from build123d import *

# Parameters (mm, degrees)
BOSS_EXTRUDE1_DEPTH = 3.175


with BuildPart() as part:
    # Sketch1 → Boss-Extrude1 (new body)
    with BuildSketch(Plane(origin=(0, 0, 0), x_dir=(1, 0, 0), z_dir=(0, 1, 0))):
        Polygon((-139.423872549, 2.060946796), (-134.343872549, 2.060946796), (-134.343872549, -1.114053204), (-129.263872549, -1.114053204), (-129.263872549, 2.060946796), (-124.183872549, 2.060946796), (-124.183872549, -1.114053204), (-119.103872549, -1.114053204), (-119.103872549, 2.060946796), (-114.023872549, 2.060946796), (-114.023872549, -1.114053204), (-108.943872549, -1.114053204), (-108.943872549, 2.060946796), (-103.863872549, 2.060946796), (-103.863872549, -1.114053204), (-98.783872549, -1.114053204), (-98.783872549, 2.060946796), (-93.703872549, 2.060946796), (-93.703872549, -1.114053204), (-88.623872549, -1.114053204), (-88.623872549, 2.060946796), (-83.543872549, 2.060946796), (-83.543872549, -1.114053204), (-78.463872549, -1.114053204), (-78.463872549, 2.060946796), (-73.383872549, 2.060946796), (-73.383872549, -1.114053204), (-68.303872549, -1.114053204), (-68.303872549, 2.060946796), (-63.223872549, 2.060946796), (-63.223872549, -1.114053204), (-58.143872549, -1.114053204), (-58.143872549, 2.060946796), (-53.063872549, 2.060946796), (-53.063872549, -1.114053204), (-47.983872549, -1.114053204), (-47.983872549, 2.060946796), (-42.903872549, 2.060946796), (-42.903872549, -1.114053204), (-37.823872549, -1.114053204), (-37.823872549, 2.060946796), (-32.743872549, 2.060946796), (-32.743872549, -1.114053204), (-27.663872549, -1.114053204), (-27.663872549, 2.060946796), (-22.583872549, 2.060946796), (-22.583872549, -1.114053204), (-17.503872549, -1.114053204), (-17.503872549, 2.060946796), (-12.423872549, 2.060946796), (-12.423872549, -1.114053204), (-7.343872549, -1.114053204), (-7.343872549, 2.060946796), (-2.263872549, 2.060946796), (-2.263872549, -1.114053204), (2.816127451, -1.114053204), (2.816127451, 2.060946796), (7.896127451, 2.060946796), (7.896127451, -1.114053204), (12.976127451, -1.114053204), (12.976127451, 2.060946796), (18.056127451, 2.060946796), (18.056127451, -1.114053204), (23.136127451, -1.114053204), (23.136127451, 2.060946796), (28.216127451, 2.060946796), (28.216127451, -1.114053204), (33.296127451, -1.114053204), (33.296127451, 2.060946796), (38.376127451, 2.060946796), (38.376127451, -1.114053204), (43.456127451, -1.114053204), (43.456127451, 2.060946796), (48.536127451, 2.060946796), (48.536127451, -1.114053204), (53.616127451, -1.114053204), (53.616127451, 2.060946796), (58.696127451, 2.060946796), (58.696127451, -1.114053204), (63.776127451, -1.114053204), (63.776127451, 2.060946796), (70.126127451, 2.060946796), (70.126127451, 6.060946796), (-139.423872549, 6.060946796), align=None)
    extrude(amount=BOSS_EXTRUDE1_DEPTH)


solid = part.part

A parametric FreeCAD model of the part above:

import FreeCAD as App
import Part
import Sketcher
Q = App.Units.Quantity


def add_polygon(sketch, points):
    """Adds a closed chain of lines whose ends are joined by coincident constraints."""
    first, n = sketch.GeometryCount, len(points)
    for a, b in zip(points, points[1:] + points[:1]):
        sketch.addGeometry(Part.LineSegment(App.Vector(*a, 0), App.Vector(*b, 0)), False)
    for i in range(n):
        sketch.addConstraint(Sketcher.Constraint("Coincident", first + i, 2, first + (i + 1) % n, 1))

doc = App.newDocument("Part")
body = doc.addObject("PartDesign::Body", "Body")

# Sketch on XZ plane
sketch1 = doc.addObject("Sketcher::SketchObject", "Sketch")
body.addObject(sketch1)
sketch1.AttachmentSupport = (doc.XZ_Plane, [""])
sketch1.MapMode = "FlatFace"
add_polygon(sketch1, [(-139.423873, -2.060947), (-134.343873, -2.060947), (-134.343873, 1.114053), (-129.263873, 1.114053), (-129.263873, -2.060947), (-124.183873, -2.060947), (-124.183873, 1.114053), (-119.103873, 1.114053), (-119.103873, -2.060947), (-114.023873, -2.060947), (-114.023873, 1.114053), (-108.943873, 1.114053), (-108.943873, -2.060947), (-103.863873, -2.060947), (-103.863873, 1.114053), (-98.783873, 1.114053), (-98.783873, -2.060947), (-93.703873, -2.060947), (-93.703873, 1.114053), (-88.623873, 1.114053), (-88.623873, -2.060947), (-83.543873, -2.060947), (-83.543873, 1.114053), (-78.463873, 1.114053), (-78.463873, -2.060947), (-73.383873, -2.060947), (-73.383873, 1.114053), (-68.303873, 1.114053), (-68.303873, -2.060947), (-63.223873, -2.060947), (-63.223873, 1.114053), (-58.143873, 1.114053), (-58.143873, -2.060947), (-53.063873, -2.060947), (-53.063873, 1.114053), (-47.983873, 1.114053), (-47.983873, -2.060947), (-42.903873, -2.060947), (-42.903873, 1.114053), (-37.823873, 1.114053), (-37.823873, -2.060947), (-32.743873, -2.060947), (-32.743873, 1.114053), (-27.663873, 1.114053), (-27.663873, -2.060947), (-22.583873, -2.060947), (-22.583873, 1.114053), (-17.503873, 1.114053), (-17.503873, -2.060947), (-12.423873, -2.060947), (-12.423873, 1.114053), (-7.343873, 1.114053), (-7.343873, -2.060947), (-2.263873, -2.060947), (-2.263873, 1.114053), (2.816127, 1.114053), (2.816127, -2.060947), (7.896127, -2.060947), (7.896127, 1.114053), (12.976127, 1.114053), (12.976127, -2.060947), (18.056127, -2.060947), (18.056127, 1.114053), (23.136127, 1.114053), (23.136127, -2.060947), (28.216127, -2.060947), (28.216127, 1.114053), (33.296127, 1.114053), (33.296127, -2.060947), (38.376127, -2.060947), (38.376127, 1.114053), (43.456127, 1.114053), (43.456127, -2.060947), (48.536127, -2.060947), (48.536127, 1.114053), (53.616127, 1.114053), (53.616127, -2.060947), (58.696127, -2.060947), (58.696127, 1.114053), (63.776127, 1.114053), (63.776127, -2.060947), (70.126127, -2.060947), (70.126127, -6.060947), (-139.423873, -6.060947)])  # lines 0-83
sketch1.addConstraint([
    Sketcher.Constraint("Horizontal", 0),
    Sketcher.Constraint("Vertical", 1),
    Sketcher.Constraint("Horizontal", 2),
    Sketcher.Constraint("Vertical", 3),
    Sketcher.Constraint("Horizontal", 4),
    Sketcher.Constraint("Vertical", 5),
    Sketcher.Constraint("Horizontal", 6),
    Sketcher.Constraint("Vertical", 7),
    Sketcher.Constraint("Horizontal", 8),
    Sketcher.Constraint("Vertical", 9),
    Sketcher.Constraint("Horizontal", 10),
    Sketcher.Constraint("Vertical", 11),
    Sketcher.Constraint("Horizontal", 12),
    Sketcher.Constraint("Vertical", 13),
    Sketcher.Constraint("Horizontal", 14),
    Sketcher.Constraint("Vertical", 15),
    Sketcher.Constraint("Horizontal", 16),
    Sketcher.Constraint("Vertical", 17),
    Sketcher.Constraint("Horizontal", 18),
    Sketcher.Constraint("Vertical", 19),
    Sketcher.Constraint("Horizontal", 20),
    Sketcher.Constraint("Vertical", 21),
    Sketcher.Constraint("Horizontal", 22),
    Sketcher.Constraint("Vertical", 23),
    Sketcher.Constraint("Horizontal", 24),
    Sketcher.Constraint("Vertical", 25),
    Sketcher.Constraint("Horizontal", 26),
    Sketcher.Constraint("Vertical", 27),
    Sketcher.Constraint("Horizontal", 28),
    Sketcher.Constraint("Vertical", 29),
    Sketcher.Constraint("Horizontal", 30),
    Sketcher.Constraint("Vertical", 31),
    Sketcher.Constraint("Horizontal", 32),
    Sketcher.Constraint("Vertical", 33),
    Sketcher.Constraint("Horizontal", 34),
    Sketcher.Constraint("Vertical", 35),
    Sketcher.Constraint("Horizontal", 36),
    Sketcher.Constraint("Vertical", 37),
    Sketcher.Constraint("Horizontal", 38),
    Sketcher.Constraint("Vertical", 39),
    Sketcher.Constraint("Horizontal", 40),
    Sketcher.Constraint("Vertical", 41),
    Sketcher.Constraint("Horizontal", 42),
    Sketcher.Constraint("Vertical", 43),
    Sketcher.Constraint("Horizontal", 44),
    Sketcher.Constraint("Vertical", 45),
    Sketcher.Constraint("Horizontal", 46),
    Sketcher.Constraint("Vertical", 47),
    Sketcher.Constraint("Horizontal", 48),
    Sketcher.Constraint("Vertical", 49),
    Sketcher.Constraint("Horizontal", 50),
    Sketcher.Constraint("Vertical", 51),
    Sketcher.Constraint("Horizontal", 52),
    Sketcher.Constraint("Vertical", 53),
    Sketcher.Constraint("Horizontal", 54),
    Sketcher.Constraint("Vertical", 55),
    Sketcher.Constraint("Horizontal", 56),
    Sketcher.Constraint("Vertical", 57),
    Sketcher.Constraint("Horizontal", 58),
    Sketcher.Constraint("Vertical", 59),
    Sketcher.Constraint("Horizontal", 60),
    Sketcher.Constraint("Vertical", 61),
    Sketcher.Constraint("Horizontal", 62),
    Sketcher.Constraint("Vertical", 63),
    Sketcher.Constraint("Horizontal", 64),
    Sketcher.Constraint("Vertical", 65),
    Sketcher.Constraint("Horizontal", 66),
    Sketcher.Constraint("Vertical", 67),
    Sketcher.Constraint("Horizontal", 68),
    Sketcher.Constraint("Vertical", 69),
    Sketcher.Constraint("Horizontal", 70),
    Sketcher.Constraint("Vertical", 71),
    Sketcher.Constraint("Horizontal", 72),
    Sketcher.Constraint("Vertical", 73),
    Sketcher.Constraint("Horizontal", 74),
    Sketcher.Constraint("Vertical", 75),
    Sketcher.Constraint("Horizontal", 76),
    Sketcher.Constraint("Vertical", 77),
    Sketcher.Constraint("Horizontal", 78),
    Sketcher.Constraint("Vertical", 79),
    Sketcher.Constraint("Horizontal", 80),
    Sketcher.Constraint("Vertical", 81),
    Sketcher.Constraint("Horizontal", 82),
    Sketcher.Constraint("Vertical", 83),
    Sketcher.Constraint("Horizontal", 0, 2, 3, 2),
    Sketcher.Constraint("Horizontal", 2, 2, 5, 2),
    Sketcher.Constraint("Horizontal", 4, 2, 7, 2),
    Sketcher.Constraint("Horizontal", 6, 2, 9, 2),
    Sketcher.Constraint("Horizontal", 8, 2, 11, 2),
    Sketcher.Constraint("Horizontal", 10, 2, 13, 2),
    Sketcher.Constraint("Horizontal", 12, 2, 15, 2),
    Sketcher.Constraint("Horizontal", 14, 2, 17, 2),
    Sketcher.Constraint("Horizontal", 16, 2, 19, 2),
    Sketcher.Constraint("Horizontal", 18, 2, 21, 2),
    Sketcher.Constraint("Horizontal", 20, 2, 23, 2),
    Sketcher.Constraint("Horizontal", 22, 2, 25, 2),
    Sketcher.Constraint("Horizontal", 24, 2, 27, 2),
    Sketcher.Constraint("Horizontal", 26, 2, 29, 2),
    Sketcher.Constraint("Horizontal", 28, 2, 31, 2),
    Sketcher.Constraint("Horizontal", 30, 2, 33, 2),
    Sketcher.Constraint("Horizontal", 32, 2, 35, 2),
    Sketcher.Constraint("Horizontal", 34, 2, 37, 2),
    Sketcher.Constraint("Horizontal", 36, 2, 39, 2),
    Sketcher.Constraint("Horizontal", 38, 2, 41, 2),
    Sketcher.Constraint("Horizontal", 40, 2, 43, 2),
    Sketcher.Constraint("Horizontal", 42, 2, 45, 2),
    Sketcher.Constraint("Horizontal", 44, 2, 47, 2),
    Sketcher.Constraint("Horizontal", 46, 2, 49, 2),
    Sketcher.Constraint("Horizontal", 48, 2, 51, 2),
    Sketcher.Constraint("Horizontal", 50, 2, 53, 2),
    Sketcher.Constraint("Horizontal", 52, 2, 55, 2),
    Sketcher.Constraint("Horizontal", 54, 2, 57, 2),
    Sketcher.Constraint("Horizontal", 56, 2, 59, 2),
    Sketcher.Constraint("Horizontal", 58, 2, 61, 2),
    Sketcher.Constraint("Horizontal", 60, 2, 63, 2),
    Sketcher.Constraint("Horizontal", 62, 2, 65, 2),
    Sketcher.Constraint("Horizontal", 64, 2, 67, 2),
    Sketcher.Constraint("Horizontal", 66, 2, 69, 2),
    Sketcher.Constraint("Horizontal", 68, 2, 71, 2),
    Sketcher.Constraint("Horizontal", 70, 2, 73, 2),
    Sketcher.Constraint("Horizontal", 72, 2, 75, 2),
    Sketcher.Constraint("Horizontal", 74, 2, 77, 2),
    Sketcher.Constraint("Horizontal", 76, 2, 79, 2),
    Sketcher.Constraint("Equal", 0, 2),
    Sketcher.Constraint("Equal", 2, 4),
    Sketcher.Constraint("Equal", 4, 6),
    Sketcher.Constraint("Equal", 6, 8),
    Sketcher.Constraint("Equal", 8, 10),
    Sketcher.Constraint("Equal", 10, 12),
    Sketcher.Constraint("Equal", 12, 14),
    Sketcher.Constraint("Equal", 14, 16),
    Sketcher.Constraint("Equal", 16, 18),
    Sketcher.Constraint("Equal", 18, 20),
    Sketcher.Constraint("Equal", 20, 22),
    Sketcher.Constraint("Equal", 22, 24),
    Sketcher.Constraint("Equal", 24, 26),
    Sketcher.Constraint("Equal", 26, 28),
    Sketcher.Constraint("Equal", 28, 30),
    Sketcher.Constraint("Equal", 30, 32),
    Sketcher.Constraint("Equal", 32, 34),
    Sketcher.Constraint("Equal", 34, 36),
    Sketcher.Constraint("Equal", 36, 38),
    Sketcher.Constraint("Equal", 38, 40),
    Sketcher.Constraint("Equal", 40, 42),
    Sketcher.Constraint("Equal", 42, 44),
    Sketcher.Constraint("Equal", 44, 46),
    Sketcher.Constraint("Equal", 46, 48),
    Sketcher.Constraint("Equal", 48, 50),
    Sketcher.Constraint("Equal", 50, 52),
    Sketcher.Constraint("Equal", 52, 54),
    Sketcher.Constraint("Equal", 54, 56),
    Sketcher.Constraint("Equal", 56, 58),
    Sketcher.Constraint("Equal", 58, 60),
    Sketcher.Constraint("Equal", 60, 62),
    Sketcher.Constraint("Equal", 62, 64),
    Sketcher.Constraint("Equal", 64, 66),
    Sketcher.Constraint("Equal", 66, 68),
    Sketcher.Constraint("Equal", 68, 70),
    Sketcher.Constraint("Equal", 70, 72),
    Sketcher.Constraint("Equal", 72, 74),
    Sketcher.Constraint("Equal", 74, 76),
    Sketcher.Constraint("Equal", 76, 78),
    Sketcher.Constraint("DistanceX", 0, 1, 0, 2, Q("0.2 in")),
    Sketcher.Constraint("DistanceX", 80, 1, 80, 2, Q("0.25 in")),
    Sketcher.Constraint("DistanceY", 1, 1, 1, 2, Q("0.125 in")),
    Sketcher.Constraint("DistanceY", 81, 2, 81, 1, 4.0),
    Sketcher.Constraint("DistanceX", 0, 2, -1, 1, 134.343873),
    Sketcher.Constraint("DistanceY", 0, 2, -1, 1, 2.060947),
])
pad1 = doc.addObject("PartDesign::Pad", "Pad")
body.addObject(pad1)
pad1.Profile = sketch1
pad1.Length = Q("0.125 in")
pad1.Reversed = True

doc.recompute()
